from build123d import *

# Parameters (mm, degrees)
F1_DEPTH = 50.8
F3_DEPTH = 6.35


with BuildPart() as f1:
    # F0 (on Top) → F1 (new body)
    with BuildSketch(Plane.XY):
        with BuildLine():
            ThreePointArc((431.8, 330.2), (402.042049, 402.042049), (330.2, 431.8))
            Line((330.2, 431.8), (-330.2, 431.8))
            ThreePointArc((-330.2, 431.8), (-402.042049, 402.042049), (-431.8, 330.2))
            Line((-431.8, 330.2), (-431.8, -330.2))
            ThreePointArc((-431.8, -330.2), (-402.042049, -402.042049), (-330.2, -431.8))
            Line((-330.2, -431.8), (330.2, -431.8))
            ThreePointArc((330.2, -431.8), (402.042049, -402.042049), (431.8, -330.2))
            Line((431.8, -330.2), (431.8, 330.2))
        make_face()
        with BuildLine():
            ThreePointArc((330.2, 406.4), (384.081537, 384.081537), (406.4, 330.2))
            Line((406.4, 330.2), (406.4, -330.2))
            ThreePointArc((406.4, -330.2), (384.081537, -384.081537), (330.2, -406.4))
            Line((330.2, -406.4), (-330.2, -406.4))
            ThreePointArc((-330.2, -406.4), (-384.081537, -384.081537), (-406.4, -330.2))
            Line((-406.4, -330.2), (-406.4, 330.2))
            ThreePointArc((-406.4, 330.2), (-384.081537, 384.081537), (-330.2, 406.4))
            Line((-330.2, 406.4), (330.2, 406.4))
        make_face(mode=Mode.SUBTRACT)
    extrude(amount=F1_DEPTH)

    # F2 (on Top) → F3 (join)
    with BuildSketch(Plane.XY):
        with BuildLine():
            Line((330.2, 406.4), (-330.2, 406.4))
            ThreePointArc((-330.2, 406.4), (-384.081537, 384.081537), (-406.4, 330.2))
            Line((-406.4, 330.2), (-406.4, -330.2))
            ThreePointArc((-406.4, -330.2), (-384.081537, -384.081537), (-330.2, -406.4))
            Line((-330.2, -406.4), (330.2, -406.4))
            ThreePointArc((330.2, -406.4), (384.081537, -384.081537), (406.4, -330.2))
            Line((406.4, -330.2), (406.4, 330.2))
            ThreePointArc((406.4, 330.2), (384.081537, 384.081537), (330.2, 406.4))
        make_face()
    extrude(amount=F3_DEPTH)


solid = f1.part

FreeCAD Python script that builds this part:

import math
import FreeCAD as App
import Part
import Sketcher
Q = App.Units.Quantity

doc = App.newDocument("Part")
body = doc.addObject("PartDesign::Body", "Body")

# Sketch on XY plane
sketch1 = doc.addObject("Sketcher::SketchObject", "Sketch")
body.addObject(sketch1)
sketch1.AttachmentSupport = (doc.XY_Plane, [""])
sketch1.MapMode = "FlatFace"
sketch1.addGeometry([
    Part.ArcOfCircle(Part.Circle(App.Vector(330, 330, 0), App.Vector(0, 0, 1), 102), math.radians(0), math.radians(90)),  # 0
    Part.LineSegment(App.Vector(330, 432, 0), App.Vector(-330, 432, 0)),  # 1
    Part.ArcOfCircle(Part.Circle(App.Vector(-330, 330, 0), App.Vector(0, 0, 1), 102), math.radians(90), math.radians(180)),  # 2
    Part.LineSegment(App.Vector(-432, 330, 0), App.Vector(-432, -330, 0)),  # 3
    Part.ArcOfCircle(Part.Circle(App.Vector(-330, -330, 0), App.Vector(0, 0, 1), 102), math.radians(180), math.radians(270)),  # 4
    Part.LineSegment(App.Vector(-330, -432, 0), App.Vector(330, -432, 0)),  # 5
    Part.ArcOfCircle(Part.Circle(App.Vector(330, -330, 0), App.Vector(0, 0, 1), 102), math.radians(-90), math.radians(0)),  # 6
    Part.LineSegment(App.Vector(432, -330, 0), App.Vector(432, 330, 0)),  # 7
    Part.LineSegment(App.Vector(-330, 406, 0), App.Vector(330, 406, 0)),  # 8
    Part.ArcOfCircle(Part.Circle(App.Vector(330, 330, 0), App.Vector(0, 0, 1), 76), math.radians(0), math.radians(90)),  # 9
    Part.LineSegment(App.Vector(406, 330, 0), App.Vector(406, -330, 0)),  # 10
    Part.ArcOfCircle(Part.Circle(App.Vector(330, -330, 0), App.Vector(0, 0, 1), 76), math.radians(-90), math.radians(0)),  # 11
    Part.LineSegment(App.Vector(330, -406, 0), App.Vector(-330, -406, 0)),  # 12
    Part.ArcOfCircle(Part.Circle(App.Vector(-330, -330, 0), App.Vector(0, 0, 1), 76), math.radians(180), math.radians(270)),  # 13
    Part.LineSegment(App.Vector(-406, -330, 0), App.Vector(-406, 330, 0)),  # 14
    Part.ArcOfCircle(Part.Circle(App.Vector(-330, 330, 0), App.Vector(0, 0, 1), 76), math.radians(90), math.radians(180)),  # 15
], False)
sketch1.addConstraint([
    Sketcher.Constraint("Tangent", 0, 2, 1, 1),
    Sketcher.Constraint("Tangent", 1, 2, 2, 1),
    Sketcher.Constraint("Tangent", 2, 2, 3, 1),
    Sketcher.Constraint("Tangent", 3, 2, 4, 1),
    Sketcher.Constraint("Tangent", 4, 2, 5, 1),
    Sketcher.Constraint("Tangent", 5, 2, 6, 1),
    Sketcher.Constraint("Tangent", 6, 2, 7, 1),
    Sketcher.Constraint("Tangent", 7, 2, 0, 1),
    Sketcher.Constraint("Tangent", 8, 2, 9, 2),
    Sketcher.Constraint("Tangent", 9, 1, 10, 1),
    Sketcher.Constraint("Tangent", 10, 2, 11, 2),
    Sketcher.Constraint("Tangent", 11, 1, 12, 1),
    Sketcher.Constraint("Tangent", 12, 2, 13, 2),
    Sketcher.Constraint("Tangent", 13, 1, 14, 1),
    Sketcher.Constraint("Tangent", 14, 2, 15, 2),
    Sketcher.Constraint("Tangent", 15, 1, 8, 1),
    Sketcher.Constraint("Horizontal", 1),
    Sketcher.Constraint("Vertical", 3),
    Sketcher.Constraint("Horizontal", 5),
    Sketcher.Constraint("Vertical", 7),
    Sketcher.Constraint("Horizontal", 8),
    Sketcher.Constraint("Vertical", 10),
    Sketcher.Constraint("Horizontal", 12),
    Sketcher.Constraint("Vertical", 14),
    Sketcher.Constraint("Coincident", 9, 3, 0, 3),
    Sketcher.Constraint("Coincident", 11, 3, 6, 3),
    Sketcher.Constraint("Coincident", 13, 3, 4, 3),
    Sketcher.Constraint("Equal", 0, 2),
    Sketcher.Constraint("Equal", 2, 4),
    Sketcher.Constraint("Equal", 4, 6),
    Sketcher.Constraint("Equal", 13, 15),
    Sketcher.Constraint("Symmetric", 0, 3, 4, 3, -1, 1),
    Sketcher.Constraint("Equal", 12, 3),
    Sketcher.Constraint("Radius", 0, Q("4 in")),
    Sketcher.Constraint("Radius", 9, Q("3 in")),
    Sketcher.Constraint("DistanceX", 1, 2, 1, 1, Q("26 in")),
])
pad1 = doc.addObject("PartDesign::Pad", "Pad")
body.addObject(pad1)
pad1.Profile = sketch1
pad1.Length = Q("2 in")

# Sketch on XY plane
sketch2 = doc.addObject("Sketcher::SketchObject", "Sketch001")
body.addObject(sketch2)
sketch2.AttachmentSupport = (doc.XY_Plane, [""])
sketch2.MapMode = "FlatFace"
sketch2.addGeometry([
    Part.LineSegment(App.Vector(330, 406, 0), App.Vector(-330, 406, 0)),  # 0
    Part.ArcOfCircle(Part.Circle(App.Vector(-330, 330, 0), App.Vector(0, 0, 1), 76), math.radians(90), math.radians(180)),  # 1
    Part.LineSegment(App.Vector(-406, 330, 0), App.Vector(-406, -330, 0)),  # 2
    Part.ArcOfCircle(Part.Circle(App.Vector(-330, -330, 0), App.Vector(0, 0, 1), 76), math.radians(180), math.radians(270)),  # 3
    Part.LineSegment(App.Vector(-330, -406, 0), App.Vector(330, -406, 0)),  # 4
    Part.ArcOfCircle(Part.Circle(App.Vector(330, -330, 0), App.Vector(0, 0, 1), 76), math.radians(-90), math.radians(0)),  # 5
    Part.LineSegment(App.Vector(406, -330, 0), App.Vector(406, 330, 0)),  # 6
    Part.ArcOfCircle(Part.Circle(App.Vector(330, 330, 0), App.Vector(0, 0, 1), 76), math.radians(0), math.radians(90)),  # 7
], False)
sketch2.addConstraint([
    Sketcher.Constraint("Tangent", 0, 2, 1, 1),
    Sketcher.Constraint("Tangent", 1, 2, 2, 1),
    Sketcher.Constraint("Tangent", 2, 2, 3, 1),
    Sketcher.Constraint("Tangent", 3, 2, 4, 1),
    Sketcher.Constraint("Tangent", 4, 2, 5, 1),
    Sketcher.Constraint("Tangent", 5, 2, 6, 1),
    Sketcher.Constraint("Tangent", 6, 2, 7, 1),
    Sketcher.Constraint("Tangent", 7, 2, 0, 1),
    Sketcher.Constraint("Horizontal", 0),
    Sketcher.Constraint("Vertical", 2),
    Sketcher.Constraint("Horizontal", 4),
    Sketcher.Constraint("Vertical", 6),
    Sketcher.Constraint("Equal", 1, 3),
    Sketcher.Constraint("Equal", 3, 5),
    Sketcher.Constraint("Equal", 5, 7),
    Sketcher.Constraint("Symmetric", 1, 3, 5, 3, -1, 1),
    Sketcher.Constraint("Equal", 4, 2),
    Sketcher.Constraint("Radius", 1, Q("3 in")),
    Sketcher.Constraint("DistanceX", 0, 2, 0, 1, Q("26 in")),
])
pad2 = doc.addObject("PartDesign::Pad", "Pad001")
body.addObject(pad2)
pad2.Profile = sketch2
pad2.Length = Q("0.25 in")

doc.recompute()
